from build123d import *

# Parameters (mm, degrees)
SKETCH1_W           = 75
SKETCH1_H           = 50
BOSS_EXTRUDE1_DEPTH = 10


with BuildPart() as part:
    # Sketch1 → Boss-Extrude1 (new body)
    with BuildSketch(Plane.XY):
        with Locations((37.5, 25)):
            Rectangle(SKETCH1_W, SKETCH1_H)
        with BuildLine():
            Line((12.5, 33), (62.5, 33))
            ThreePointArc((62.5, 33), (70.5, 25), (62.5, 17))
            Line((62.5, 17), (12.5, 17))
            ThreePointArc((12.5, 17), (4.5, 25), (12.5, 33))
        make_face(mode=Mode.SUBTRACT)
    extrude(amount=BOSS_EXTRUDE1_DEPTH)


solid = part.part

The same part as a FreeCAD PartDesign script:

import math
import FreeCAD as App
import Part
import Sketcher

V = App.Vector

doc = App.newDocument("Part")
body = doc.addObject("PartDesign::Body", "Body")

sketch1 = body.newObject("Sketcher::SketchObject", "Sketch")
sketch1.AttachmentSupport = (doc.getObject("XY_Plane"), [""])
sketch1.MapMode = "FlatFace"
sketch1.addGeometry([
    Part.LineSegment(V(0, 50, 0), V(0, 0, 0)),
    Part.LineSegment(V(0, 0, 0), V(75, 0, 0)),
    Part.LineSegment(V(75, 0, 0), V(75, 50, 0)),
    Part.LineSegment(V(75, 50, 0), V(0, 50, 0)),
    Part.ArcOfCircle(Part.Circle(V(12.5, 25, 0), V(0, 0, 1), 8), math.radians(90), math.radians(270)),
    Part.LineSegment(V(12.5, 33, 0), V(62.5, 33, 0)),
    Part.ArcOfCircle(Part.Circle(V(62.5, 25, 0), V(0, 0, 1), 8), math.radians(-90), math.radians(90)),
    Part.LineSegment(V(62.5, 17, 0), V(12.5, 17, 0)),
], False)
sketch1.addConstraint([
    Sketcher.Constraint("Coincident", 0, 2, 1, 1),
    Sketcher.Constraint("Coincident", 1, 2, 2, 1),
    Sketcher.Constraint("Coincident", 2, 2, 3, 1),
    Sketcher.Constraint("Coincident", 3, 2, 0, 1),
    Sketcher.Constraint("Tangent", 4, 1, 5, 1),
    Sketcher.Constraint("Tangent", 5, 2, 6, 2),
    Sketcher.Constraint("Tangent", 6, 1, 7, 1),
    Sketcher.Constraint("Tangent", 7, 2, 4, 2),
    Sketcher.Constraint("Vertical", 0),
    Sketcher.Constraint("Horizontal", 1),
    Sketcher.Constraint("Vertical", 2),
    Sketcher.Constraint("Horizontal", 3),
    Sketcher.Constraint("Horizontal", 5),
    Sketcher.Constraint("Horizontal", 7),
    Sketcher.Constraint("Coincident", 0, 2, -1, 1),
    Sketcher.Constraint("Equal", 7, 0),
    Sketcher.Constraint("Radius", 4, 8.0),
    Sketcher.Constraint("DistanceX", 1, 1, 1, 2, 75.0),
    Sketcher.Constraint("DistanceX", 5, 1, 5, 2, 50.0),
    Sketcher.Constraint("DistanceY", -1, 1, 4, 3, 25.0),
    Sketcher.Constraint("DistanceX", -1, 1, 4, 3, 12.5),
])
pad1 = body.newObject("PartDesign::Pad", "Pad")
pad1.Profile = sketch1
pad1.Length = 10

doc.recompute()
